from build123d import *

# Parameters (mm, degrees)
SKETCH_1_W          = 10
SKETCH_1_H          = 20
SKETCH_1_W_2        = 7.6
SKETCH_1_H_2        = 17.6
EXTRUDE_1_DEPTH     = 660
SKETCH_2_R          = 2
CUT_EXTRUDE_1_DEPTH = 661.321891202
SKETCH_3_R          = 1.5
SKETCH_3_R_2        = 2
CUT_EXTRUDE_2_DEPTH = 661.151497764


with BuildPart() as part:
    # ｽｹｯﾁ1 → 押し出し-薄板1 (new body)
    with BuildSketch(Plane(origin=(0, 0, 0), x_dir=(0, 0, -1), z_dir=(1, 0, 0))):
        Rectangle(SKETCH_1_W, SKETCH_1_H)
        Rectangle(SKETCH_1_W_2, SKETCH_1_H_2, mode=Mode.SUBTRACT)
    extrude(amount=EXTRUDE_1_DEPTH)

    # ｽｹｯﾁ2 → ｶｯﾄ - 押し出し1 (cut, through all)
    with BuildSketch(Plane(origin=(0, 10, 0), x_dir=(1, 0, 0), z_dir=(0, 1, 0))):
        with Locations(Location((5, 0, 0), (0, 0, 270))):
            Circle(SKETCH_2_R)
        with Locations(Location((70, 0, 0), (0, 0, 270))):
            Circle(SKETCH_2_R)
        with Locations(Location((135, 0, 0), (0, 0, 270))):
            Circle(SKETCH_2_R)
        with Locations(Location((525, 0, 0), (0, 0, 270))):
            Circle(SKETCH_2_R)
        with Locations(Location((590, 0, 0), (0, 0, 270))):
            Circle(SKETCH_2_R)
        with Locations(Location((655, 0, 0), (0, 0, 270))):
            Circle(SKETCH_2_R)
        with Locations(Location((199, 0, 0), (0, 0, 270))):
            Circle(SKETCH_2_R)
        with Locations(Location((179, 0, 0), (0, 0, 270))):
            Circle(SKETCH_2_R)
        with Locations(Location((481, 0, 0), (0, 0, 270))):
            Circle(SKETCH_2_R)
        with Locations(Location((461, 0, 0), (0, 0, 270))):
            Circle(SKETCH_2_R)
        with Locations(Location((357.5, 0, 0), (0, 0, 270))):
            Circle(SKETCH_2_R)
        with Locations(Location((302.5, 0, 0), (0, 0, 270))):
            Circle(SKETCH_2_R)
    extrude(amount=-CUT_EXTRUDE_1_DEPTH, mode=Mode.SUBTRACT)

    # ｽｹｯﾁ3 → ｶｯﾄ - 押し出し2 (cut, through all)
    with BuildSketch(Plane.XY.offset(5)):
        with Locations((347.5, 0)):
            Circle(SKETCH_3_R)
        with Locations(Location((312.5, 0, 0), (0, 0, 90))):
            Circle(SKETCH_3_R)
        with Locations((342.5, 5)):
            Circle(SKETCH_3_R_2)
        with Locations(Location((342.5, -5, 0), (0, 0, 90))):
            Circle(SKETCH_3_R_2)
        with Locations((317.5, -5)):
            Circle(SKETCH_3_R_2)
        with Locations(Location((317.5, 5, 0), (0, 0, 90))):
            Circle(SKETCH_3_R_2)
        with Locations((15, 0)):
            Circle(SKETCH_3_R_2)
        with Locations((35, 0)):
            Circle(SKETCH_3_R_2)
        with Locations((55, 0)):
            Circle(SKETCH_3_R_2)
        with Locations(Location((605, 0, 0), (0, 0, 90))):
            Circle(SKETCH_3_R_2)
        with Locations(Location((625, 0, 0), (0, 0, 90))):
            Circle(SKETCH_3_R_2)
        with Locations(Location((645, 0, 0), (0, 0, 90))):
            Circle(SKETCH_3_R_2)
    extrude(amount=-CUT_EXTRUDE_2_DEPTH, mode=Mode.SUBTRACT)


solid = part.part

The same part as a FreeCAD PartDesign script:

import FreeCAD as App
import Part
import Sketcher

V = App.Vector
Q = App.Units.Quantity

doc = App.newDocument("Part")
params = doc.addObject("Spreadsheet::Sheet", "Params")
for row, (alias, value) in enumerate([
    ("sketch1_width", "20 mm"),
    ("sketch1_height", "10 mm"),
    ("sketch1_width2", "17.6 mm"),
    ("sketch1_height2", "7.6 mm"),
    ("pad1_length", "660 mm"),
    ("sketch2_diameter", "4 mm"),
    ("sketch3_diameter", "3 mm"),
    ("sketch3_diameter2", "4 mm"),
], start=1):
    params.set(f"A{row}", alias)
    params.set(f"B{row}", "=" + value)
    params.setAlias(f"B{row}", alias)

body = doc.addObject("PartDesign::Body", "Body")

sketch1 = body.newObject("Sketcher::SketchObject", "Sketch")
sketch1.AttachmentSupport = (doc.getObject("YZ_Plane"), [""])
sketch1.MapMode = "FlatFace"
sketch1.addGeometry(Part.LineSegment(V(10, 5, 0), V(-10, 5, 0)), False)
sketch1.addGeometry(Part.LineSegment(V(-10, 5, 0), V(-10, -5, 0)), False)
sketch1.addGeometry(Part.LineSegment(V(-10, -5, 0), V(10, -5, 0)), False)
sketch1.addGeometry(Part.LineSegment(V(10, -5, 0), V(10, 5, 0)), False)
sketch1.addGeometry(Part.LineSegment(V(-9, -4, 0), V(-9, 4, 0)), False)
sketch1.addGeometry(Part.LineSegment(V(-9, 4, 0), V(9, 4, 0)), False)
sketch1.addGeometry(Part.LineSegment(V(9, 4, 0), V(9, -4, 0)), False)
sketch1.addGeometry(Part.LineSegment(V(9, -4, 0), V(-9, -4, 0)), False)
sketch1.addConstraint(Sketcher.Constraint("Coincident", 0, 2, 1, 1))
sketch1.addConstraint(Sketcher.Constraint("Coincident", 1, 2, 2, 1))
sketch1.addConstraint(Sketcher.Constraint("Coincident", 2, 2, 3, 1))
sketch1.addConstraint(Sketcher.Constraint("Coincident", 3, 2, 0, 1))
sketch1.addConstraint(Sketcher.Constraint("Coincident", 4, 2, 5, 1))
sketch1.addConstraint(Sketcher.Constraint("Coincident", 5, 2, 6, 1))
sketch1.addConstraint(Sketcher.Constraint("Coincident", 6, 2, 7, 1))
sketch1.addConstraint(Sketcher.Constraint("Coincident", 7, 2, 4, 1))
sketch1.addConstraint(Sketcher.Constraint("Horizontal", 0))
sketch1.addConstraint(Sketcher.Constraint("Vertical", 1))
sketch1.addConstraint(Sketcher.Constraint("Horizontal", 2))
sketch1.addConstraint(Sketcher.Constraint("Vertical", 3))
sketch1.addConstraint(Sketcher.Constraint("Vertical", 4))
sketch1.addConstraint(Sketcher.Constraint("Horizontal", 5))
sketch1.addConstraint(Sketcher.Constraint("Vertical", 6))
sketch1.addConstraint(Sketcher.Constraint("Horizontal", 7))
sketch1.addConstraint(Sketcher.Constraint("Symmetric", 0, 2, 2, 2, -1, 1))
sketch1.addConstraint(Sketcher.Constraint("Symmetric", 4, 2, 6, 2, -1, 1))
sketch1.addConstraint(Sketcher.Constraint("DistanceX", 0, 2, 0, 1, Q("20 mm")))
sketch1.addConstraint(Sketcher.Constraint("DistanceY", 1, 2, 1, 1, Q("10 mm")))
sketch1.addConstraint(Sketcher.Constraint("DistanceX", 5, 1, 5, 2, Q("17.6 mm")))
sketch1.addConstraint(Sketcher.Constraint("DistanceY", 4, 1, 4, 2, Q("7.6 mm")))
sketch1.setExpression("Constraints[18]", "Params.sketch1_width")
sketch1.setExpression("Constraints[19]", "Params.sketch1_height")
sketch1.setExpression("Constraints[20]", "Params.sketch1_width2")
sketch1.setExpression("Constraints[21]", "Params.sketch1_height2")
pad1 = body.newObject("PartDesign::Pad", "Pad")
pad1.Profile = sketch1
pad1.setExpression("Length", "Params.pad1_length")

sketch2 = body.newObject("Sketcher::SketchObject", "Sketch001")
sketch2.AttachmentSupport = (doc.getObject("XZ_Plane"), [""])
sketch2.MapMode = "FlatFace"
sketch2.AttachmentOffset = App.Placement(V(0, 0, -10), App.Rotation())
sketch2.addGeometry(Part.Circle(V(5, 0, 0), V(0, 0, 1), 2), False)
sketch2.addGeometry(Part.Circle(V(70, 0, 0), V(0, 0, 1), 2), False)
sketch2.addGeometry(Part.Circle(V(135, 0, 0), V(0, 0, 1), 2), False)
sketch2.addGeometry(Part.Circle(V(525, 0, 0), V(0, 0, 1), 2), False)
sketch2.addGeometry(Part.Circle(V(590, 0, 0), V(0, 0, 1), 2), False)
sketch2.addGeometry(Part.Circle(V(655, 0, 0), V(0, 0, 1), 2), False)
sketch2.addGeometry(Part.Circle(V(199, 0, 0), V(0, 0, 1), 2), False)
sketch2.addGeometry(Part.Circle(V(179, 0, 0), V(0, 0, 1), 2), False)
sketch2.addGeometry(Part.Circle(V(481, 0, 0), V(0, 0, 1), 2), False)
sketch2.addGeometry(Part.Circle(V(461, 0, 0), V(0, 0, 1), 2), False)
sketch2.addGeometry(Part.Circle(V(357.5, 0, 0), V(0, 0, 1), 2), False)
sketch2.addGeometry(Part.Circle(V(302.5, 0, 0), V(0, 0, 1), 2), False)
sketch2.addConstraint(Sketcher.Constraint("Equal", 0, 1))
sketch2.addConstraint(Sketcher.Constraint("Equal", 1, 2))
sketch2.addConstraint(Sketcher.Constraint("Equal", 2, 3))
sketch2.addConstraint(Sketcher.Constraint("Equal", 3, 4))
sketch2.addConstraint(Sketcher.Constraint("Equal", 4, 5))
sketch2.addConstraint(Sketcher.Constraint("Equal", 5, 6))
sketch2.addConstraint(Sketcher.Constraint("Equal", 6, 7))
sketch2.addConstraint(Sketcher.Constraint("Equal", 7, 8))
sketch2.addConstraint(Sketcher.Constraint("Equal", 8, 9))
sketch2.addConstraint(Sketcher.Constraint("Equal", 9, 10))
sketch2.addConstraint(Sketcher.Constraint("Equal", 10, 11))
sketch2.addConstraint(Sketcher.Constraint("PointOnObject", 0, 3, -1))
sketch2.addConstraint(Sketcher.Constraint("PointOnObject", 1, 3, -1))
sketch2.addConstraint(Sketcher.Constraint("PointOnObject", 2, 3, -1))
sketch2.addConstraint(Sketcher.Constraint("PointOnObject", 3, 3, -1))
sketch2.addConstraint(Sketcher.Constraint("PointOnObject", 4, 3, -1))
sketch2.addConstraint(Sketcher.Constraint("PointOnObject", 5, 3, -1))
sketch2.addConstraint(Sketcher.Constraint("PointOnObject", 6, 3, -1))
sketch2.addConstraint(Sketcher.Constraint("PointOnObject", 7, 3, -1))
sketch2.addConstraint(Sketcher.Constraint("PointOnObject", 8, 3, -1))
sketch2.addConstraint(Sketcher.Constraint("PointOnObject", 9, 3, -1))
sketch2.addConstraint(Sketcher.Constraint("PointOnObject", 10, 3, -1))
sketch2.addConstraint(Sketcher.Constraint("PointOnObject", 11, 3, -1))
sketch2.addConstraint(Sketcher.Constraint("Diameter", 0, Q("4 mm")))
sketch2.addConstraint(Sketcher.Constraint("DistanceX", -1, 1, 0, 3, Q("5 mm")))
sketch2.addConstraint(Sketcher.Constraint("DistanceX", -1, 1, 1, 3, Q("70 mm")))
sketch2.addConstraint(Sketcher.Constraint("DistanceX", -1, 1, 2, 3, Q("135 mm")))
sketch2.addConstraint(Sketcher.Constraint("DistanceX", -1, 1, 3, 3, Q("525 mm")))
sketch2.addConstraint(Sketcher.Constraint("DistanceX", -1, 1, 4, 3, Q("590 mm")))
sketch2.addConstraint(Sketcher.Constraint("DistanceX", -1, 1, 5, 3, Q("655 mm")))
sketch2.addConstraint(Sketcher.Constraint("DistanceX", -1, 1, 6, 3, Q("199 mm")))
sketch2.addConstraint(Sketcher.Constraint("DistanceX", -1, 1, 7, 3, Q("179 mm")))
sketch2.addConstraint(Sketcher.Constraint("DistanceX", -1, 1, 8, 3, Q("481 mm")))
sketch2.addConstraint(Sketcher.Constraint("DistanceX", -1, 1, 9, 3, Q("461 mm")))
sketch2.addConstraint(Sketcher.Constraint("DistanceX", 11, 3, 10, 3, Q("55 mm")))
sketch2.addConstraint(Sketcher.Constraint("DistanceX", -1, 1, 10, 3, Q("357.5 mm")))
sketch2.setExpression("Constraints[23]", "Params.sketch2_diameter")
pocket1 = body.newObject("PartDesign::Pocket", "Pocket")
pocket1.Profile = sketch2
pocket1.Type = "ThroughAll"
pocket1.Reversed = True

sketch3 = body.newObject("Sketcher::SketchObject", "Sketch002")
sketch3.AttachmentSupport = (doc.getObject("XY_Plane"), [""])
sketch3.MapMode = "FlatFace"
sketch3.AttachmentOffset = App.Placement(V(0, 0, 5), App.Rotation())
sketch3.addGeometry(Part.Circle(V(347.5, 0, 0), V(0, 0, 1), 1.5), False)
sketch3.addGeometry(Part.Circle(V(312.5, 0, 0), V(0, 0, 1), 1.5), False)
sketch3.addGeometry(Part.Circle(V(342.5, 5, 0), V(0, 0, 1), 2), False)
sketch3.addGeometry(Part.Circle(V(342.5, -5, 0), V(0, 0, 1), 2), False)
sketch3.addGeometry(Part.Circle(V(317.5, -5, 0), V(0, 0, 1), 2), False)
sketch3.addGeometry(Part.Circle(V(317.5, 5, 0), V(0, 0, 1), 2), False)
sketch3.addGeometry(Part.Circle(V(15, 0, 0), V(0, 0, 1), 2), False)
sketch3.addGeometry(Part.Circle(V(35, 0, 0), V(0, 0, 1), 2), False)
sketch3.addGeometry(Part.Circle(V(55, 0, 0), V(0, 0, 1), 2), False)
sketch3.addGeometry(Part.Circle(V(605, 0, 0), V(0, 0, 1), 2), False)
sketch3.addGeometry(Part.Circle(V(625, 0, 0), V(0, 0, 1), 2), False)
sketch3.addGeometry(Part.Circle(V(645, 0, 0), V(0, 0, 1), 2), False)
sketch3.addConstraint(Sketcher.Constraint("Equal", 0, 1))
sketch3.addConstraint(Sketcher.Constraint("Equal", 2, 3))
sketch3.addConstraint(Sketcher.Constraint("Equal", 3, 4))
sketch3.addConstraint(Sketcher.Constraint("Equal", 4, 5))
sketch3.addConstraint(Sketcher.Constraint("Equal", 5, 6))
sketch3.addConstraint(Sketcher.Constraint("Equal", 6, 7))
sketch3.addConstraint(Sketcher.Constraint("Equal", 7, 8))
sketch3.addConstraint(Sketcher.Constraint("Equal", 8, 9))
sketch3.addConstraint(Sketcher.Constraint("Equal", 9, 10))
sketch3.addConstraint(Sketcher.Constraint("Equal", 10, 11))
sketch3.addConstraint(Sketcher.Constraint("Symmetric", 2, 3, 3, 3, -1))
sketch3.addConstraint(Sketcher.Constraint("Symmetric", 4, 3, 5, 3, -1))
sketch3.addConstraint(Sketcher.Constraint("PointOnObject", 0, 3, -1))
sketch3.addConstraint(Sketcher.Constraint("PointOnObject", 1, 3, -1))
sketch3.addConstraint(Sketcher.Constraint("PointOnObject", 6, 3, -1))
sketch3.addConstraint(Sketcher.Constraint("PointOnObject", 7, 3, -1))
sketch3.addConstraint(Sketcher.Constraint("PointOnObject", 8, 3, -1))
sketch3.addConstraint(Sketcher.Constraint("PointOnObject", 9, 3, -1))
sketch3.addConstraint(Sketcher.Constraint("PointOnObject", 10, 3, -1))
sketch3.addConstraint(Sketcher.Constraint("PointOnObject", 11, 3, -1))
sketch3.addConstraint(Sketcher.Constraint("Horizontal", 3, 3, 4, 3))
sketch3.addConstraint(Sketcher.Constraint("Diameter", 0, Q("3 mm")))
sketch3.addConstraint(Sketcher.Constraint("Diameter", 2, Q("4 mm")))
sketch3.addConstraint(Sketcher.Constraint("DistanceY", -1, 1, 2, 3, Q("5 mm")))
sketch3.addConstraint(Sketcher.Constraint("DistanceX", -1, 1, 6, 3, Q("15 mm")))
sketch3.addConstraint(Sketcher.Constraint("DistanceX", -1, 1, 7, 3, Q("35 mm")))
sketch3.addConstraint(Sketcher.Constraint("DistanceX", -1, 1, 8, 3, Q("55 mm")))
sketch3.addConstraint(Sketcher.Constraint("DistanceX", -1, 1, 9, 3, Q("605 mm")))
sketch3.addConstraint(Sketcher.Constraint("DistanceX", -1, 1, 10, 3, Q("625 mm")))
sketch3.addConstraint(Sketcher.Constraint("DistanceX", -1, 1, 11, 3, Q("645 mm")))
sketch3.addConstraint(Sketcher.Constraint("DistanceX", 1, 3, 0, 3, Q("35 mm")))
sketch3.addConstraint(Sketcher.Constraint("DistanceX", 2, 3, 0, 3, Q("5 mm")))
sketch3.addConstraint(Sketcher.Constraint("DistanceX", 1, 3, 4, 3, Q("5 mm")))
sketch3.addConstraint(Sketcher.Constraint("DistanceX", -1, 1, 0, 3, Q("347.5 mm")))
sketch3.setExpression("Constraints[21]", "Params.sketch3_diameter")
sketch3.setExpression("Constraints[22]", "Params.sketch3_diameter2")
pocket2 = body.newObject("PartDesign::Pocket", "Pocket001")
pocket2.Profile = sketch3
pocket2.Type = "ThroughAll"

doc.recompute()
